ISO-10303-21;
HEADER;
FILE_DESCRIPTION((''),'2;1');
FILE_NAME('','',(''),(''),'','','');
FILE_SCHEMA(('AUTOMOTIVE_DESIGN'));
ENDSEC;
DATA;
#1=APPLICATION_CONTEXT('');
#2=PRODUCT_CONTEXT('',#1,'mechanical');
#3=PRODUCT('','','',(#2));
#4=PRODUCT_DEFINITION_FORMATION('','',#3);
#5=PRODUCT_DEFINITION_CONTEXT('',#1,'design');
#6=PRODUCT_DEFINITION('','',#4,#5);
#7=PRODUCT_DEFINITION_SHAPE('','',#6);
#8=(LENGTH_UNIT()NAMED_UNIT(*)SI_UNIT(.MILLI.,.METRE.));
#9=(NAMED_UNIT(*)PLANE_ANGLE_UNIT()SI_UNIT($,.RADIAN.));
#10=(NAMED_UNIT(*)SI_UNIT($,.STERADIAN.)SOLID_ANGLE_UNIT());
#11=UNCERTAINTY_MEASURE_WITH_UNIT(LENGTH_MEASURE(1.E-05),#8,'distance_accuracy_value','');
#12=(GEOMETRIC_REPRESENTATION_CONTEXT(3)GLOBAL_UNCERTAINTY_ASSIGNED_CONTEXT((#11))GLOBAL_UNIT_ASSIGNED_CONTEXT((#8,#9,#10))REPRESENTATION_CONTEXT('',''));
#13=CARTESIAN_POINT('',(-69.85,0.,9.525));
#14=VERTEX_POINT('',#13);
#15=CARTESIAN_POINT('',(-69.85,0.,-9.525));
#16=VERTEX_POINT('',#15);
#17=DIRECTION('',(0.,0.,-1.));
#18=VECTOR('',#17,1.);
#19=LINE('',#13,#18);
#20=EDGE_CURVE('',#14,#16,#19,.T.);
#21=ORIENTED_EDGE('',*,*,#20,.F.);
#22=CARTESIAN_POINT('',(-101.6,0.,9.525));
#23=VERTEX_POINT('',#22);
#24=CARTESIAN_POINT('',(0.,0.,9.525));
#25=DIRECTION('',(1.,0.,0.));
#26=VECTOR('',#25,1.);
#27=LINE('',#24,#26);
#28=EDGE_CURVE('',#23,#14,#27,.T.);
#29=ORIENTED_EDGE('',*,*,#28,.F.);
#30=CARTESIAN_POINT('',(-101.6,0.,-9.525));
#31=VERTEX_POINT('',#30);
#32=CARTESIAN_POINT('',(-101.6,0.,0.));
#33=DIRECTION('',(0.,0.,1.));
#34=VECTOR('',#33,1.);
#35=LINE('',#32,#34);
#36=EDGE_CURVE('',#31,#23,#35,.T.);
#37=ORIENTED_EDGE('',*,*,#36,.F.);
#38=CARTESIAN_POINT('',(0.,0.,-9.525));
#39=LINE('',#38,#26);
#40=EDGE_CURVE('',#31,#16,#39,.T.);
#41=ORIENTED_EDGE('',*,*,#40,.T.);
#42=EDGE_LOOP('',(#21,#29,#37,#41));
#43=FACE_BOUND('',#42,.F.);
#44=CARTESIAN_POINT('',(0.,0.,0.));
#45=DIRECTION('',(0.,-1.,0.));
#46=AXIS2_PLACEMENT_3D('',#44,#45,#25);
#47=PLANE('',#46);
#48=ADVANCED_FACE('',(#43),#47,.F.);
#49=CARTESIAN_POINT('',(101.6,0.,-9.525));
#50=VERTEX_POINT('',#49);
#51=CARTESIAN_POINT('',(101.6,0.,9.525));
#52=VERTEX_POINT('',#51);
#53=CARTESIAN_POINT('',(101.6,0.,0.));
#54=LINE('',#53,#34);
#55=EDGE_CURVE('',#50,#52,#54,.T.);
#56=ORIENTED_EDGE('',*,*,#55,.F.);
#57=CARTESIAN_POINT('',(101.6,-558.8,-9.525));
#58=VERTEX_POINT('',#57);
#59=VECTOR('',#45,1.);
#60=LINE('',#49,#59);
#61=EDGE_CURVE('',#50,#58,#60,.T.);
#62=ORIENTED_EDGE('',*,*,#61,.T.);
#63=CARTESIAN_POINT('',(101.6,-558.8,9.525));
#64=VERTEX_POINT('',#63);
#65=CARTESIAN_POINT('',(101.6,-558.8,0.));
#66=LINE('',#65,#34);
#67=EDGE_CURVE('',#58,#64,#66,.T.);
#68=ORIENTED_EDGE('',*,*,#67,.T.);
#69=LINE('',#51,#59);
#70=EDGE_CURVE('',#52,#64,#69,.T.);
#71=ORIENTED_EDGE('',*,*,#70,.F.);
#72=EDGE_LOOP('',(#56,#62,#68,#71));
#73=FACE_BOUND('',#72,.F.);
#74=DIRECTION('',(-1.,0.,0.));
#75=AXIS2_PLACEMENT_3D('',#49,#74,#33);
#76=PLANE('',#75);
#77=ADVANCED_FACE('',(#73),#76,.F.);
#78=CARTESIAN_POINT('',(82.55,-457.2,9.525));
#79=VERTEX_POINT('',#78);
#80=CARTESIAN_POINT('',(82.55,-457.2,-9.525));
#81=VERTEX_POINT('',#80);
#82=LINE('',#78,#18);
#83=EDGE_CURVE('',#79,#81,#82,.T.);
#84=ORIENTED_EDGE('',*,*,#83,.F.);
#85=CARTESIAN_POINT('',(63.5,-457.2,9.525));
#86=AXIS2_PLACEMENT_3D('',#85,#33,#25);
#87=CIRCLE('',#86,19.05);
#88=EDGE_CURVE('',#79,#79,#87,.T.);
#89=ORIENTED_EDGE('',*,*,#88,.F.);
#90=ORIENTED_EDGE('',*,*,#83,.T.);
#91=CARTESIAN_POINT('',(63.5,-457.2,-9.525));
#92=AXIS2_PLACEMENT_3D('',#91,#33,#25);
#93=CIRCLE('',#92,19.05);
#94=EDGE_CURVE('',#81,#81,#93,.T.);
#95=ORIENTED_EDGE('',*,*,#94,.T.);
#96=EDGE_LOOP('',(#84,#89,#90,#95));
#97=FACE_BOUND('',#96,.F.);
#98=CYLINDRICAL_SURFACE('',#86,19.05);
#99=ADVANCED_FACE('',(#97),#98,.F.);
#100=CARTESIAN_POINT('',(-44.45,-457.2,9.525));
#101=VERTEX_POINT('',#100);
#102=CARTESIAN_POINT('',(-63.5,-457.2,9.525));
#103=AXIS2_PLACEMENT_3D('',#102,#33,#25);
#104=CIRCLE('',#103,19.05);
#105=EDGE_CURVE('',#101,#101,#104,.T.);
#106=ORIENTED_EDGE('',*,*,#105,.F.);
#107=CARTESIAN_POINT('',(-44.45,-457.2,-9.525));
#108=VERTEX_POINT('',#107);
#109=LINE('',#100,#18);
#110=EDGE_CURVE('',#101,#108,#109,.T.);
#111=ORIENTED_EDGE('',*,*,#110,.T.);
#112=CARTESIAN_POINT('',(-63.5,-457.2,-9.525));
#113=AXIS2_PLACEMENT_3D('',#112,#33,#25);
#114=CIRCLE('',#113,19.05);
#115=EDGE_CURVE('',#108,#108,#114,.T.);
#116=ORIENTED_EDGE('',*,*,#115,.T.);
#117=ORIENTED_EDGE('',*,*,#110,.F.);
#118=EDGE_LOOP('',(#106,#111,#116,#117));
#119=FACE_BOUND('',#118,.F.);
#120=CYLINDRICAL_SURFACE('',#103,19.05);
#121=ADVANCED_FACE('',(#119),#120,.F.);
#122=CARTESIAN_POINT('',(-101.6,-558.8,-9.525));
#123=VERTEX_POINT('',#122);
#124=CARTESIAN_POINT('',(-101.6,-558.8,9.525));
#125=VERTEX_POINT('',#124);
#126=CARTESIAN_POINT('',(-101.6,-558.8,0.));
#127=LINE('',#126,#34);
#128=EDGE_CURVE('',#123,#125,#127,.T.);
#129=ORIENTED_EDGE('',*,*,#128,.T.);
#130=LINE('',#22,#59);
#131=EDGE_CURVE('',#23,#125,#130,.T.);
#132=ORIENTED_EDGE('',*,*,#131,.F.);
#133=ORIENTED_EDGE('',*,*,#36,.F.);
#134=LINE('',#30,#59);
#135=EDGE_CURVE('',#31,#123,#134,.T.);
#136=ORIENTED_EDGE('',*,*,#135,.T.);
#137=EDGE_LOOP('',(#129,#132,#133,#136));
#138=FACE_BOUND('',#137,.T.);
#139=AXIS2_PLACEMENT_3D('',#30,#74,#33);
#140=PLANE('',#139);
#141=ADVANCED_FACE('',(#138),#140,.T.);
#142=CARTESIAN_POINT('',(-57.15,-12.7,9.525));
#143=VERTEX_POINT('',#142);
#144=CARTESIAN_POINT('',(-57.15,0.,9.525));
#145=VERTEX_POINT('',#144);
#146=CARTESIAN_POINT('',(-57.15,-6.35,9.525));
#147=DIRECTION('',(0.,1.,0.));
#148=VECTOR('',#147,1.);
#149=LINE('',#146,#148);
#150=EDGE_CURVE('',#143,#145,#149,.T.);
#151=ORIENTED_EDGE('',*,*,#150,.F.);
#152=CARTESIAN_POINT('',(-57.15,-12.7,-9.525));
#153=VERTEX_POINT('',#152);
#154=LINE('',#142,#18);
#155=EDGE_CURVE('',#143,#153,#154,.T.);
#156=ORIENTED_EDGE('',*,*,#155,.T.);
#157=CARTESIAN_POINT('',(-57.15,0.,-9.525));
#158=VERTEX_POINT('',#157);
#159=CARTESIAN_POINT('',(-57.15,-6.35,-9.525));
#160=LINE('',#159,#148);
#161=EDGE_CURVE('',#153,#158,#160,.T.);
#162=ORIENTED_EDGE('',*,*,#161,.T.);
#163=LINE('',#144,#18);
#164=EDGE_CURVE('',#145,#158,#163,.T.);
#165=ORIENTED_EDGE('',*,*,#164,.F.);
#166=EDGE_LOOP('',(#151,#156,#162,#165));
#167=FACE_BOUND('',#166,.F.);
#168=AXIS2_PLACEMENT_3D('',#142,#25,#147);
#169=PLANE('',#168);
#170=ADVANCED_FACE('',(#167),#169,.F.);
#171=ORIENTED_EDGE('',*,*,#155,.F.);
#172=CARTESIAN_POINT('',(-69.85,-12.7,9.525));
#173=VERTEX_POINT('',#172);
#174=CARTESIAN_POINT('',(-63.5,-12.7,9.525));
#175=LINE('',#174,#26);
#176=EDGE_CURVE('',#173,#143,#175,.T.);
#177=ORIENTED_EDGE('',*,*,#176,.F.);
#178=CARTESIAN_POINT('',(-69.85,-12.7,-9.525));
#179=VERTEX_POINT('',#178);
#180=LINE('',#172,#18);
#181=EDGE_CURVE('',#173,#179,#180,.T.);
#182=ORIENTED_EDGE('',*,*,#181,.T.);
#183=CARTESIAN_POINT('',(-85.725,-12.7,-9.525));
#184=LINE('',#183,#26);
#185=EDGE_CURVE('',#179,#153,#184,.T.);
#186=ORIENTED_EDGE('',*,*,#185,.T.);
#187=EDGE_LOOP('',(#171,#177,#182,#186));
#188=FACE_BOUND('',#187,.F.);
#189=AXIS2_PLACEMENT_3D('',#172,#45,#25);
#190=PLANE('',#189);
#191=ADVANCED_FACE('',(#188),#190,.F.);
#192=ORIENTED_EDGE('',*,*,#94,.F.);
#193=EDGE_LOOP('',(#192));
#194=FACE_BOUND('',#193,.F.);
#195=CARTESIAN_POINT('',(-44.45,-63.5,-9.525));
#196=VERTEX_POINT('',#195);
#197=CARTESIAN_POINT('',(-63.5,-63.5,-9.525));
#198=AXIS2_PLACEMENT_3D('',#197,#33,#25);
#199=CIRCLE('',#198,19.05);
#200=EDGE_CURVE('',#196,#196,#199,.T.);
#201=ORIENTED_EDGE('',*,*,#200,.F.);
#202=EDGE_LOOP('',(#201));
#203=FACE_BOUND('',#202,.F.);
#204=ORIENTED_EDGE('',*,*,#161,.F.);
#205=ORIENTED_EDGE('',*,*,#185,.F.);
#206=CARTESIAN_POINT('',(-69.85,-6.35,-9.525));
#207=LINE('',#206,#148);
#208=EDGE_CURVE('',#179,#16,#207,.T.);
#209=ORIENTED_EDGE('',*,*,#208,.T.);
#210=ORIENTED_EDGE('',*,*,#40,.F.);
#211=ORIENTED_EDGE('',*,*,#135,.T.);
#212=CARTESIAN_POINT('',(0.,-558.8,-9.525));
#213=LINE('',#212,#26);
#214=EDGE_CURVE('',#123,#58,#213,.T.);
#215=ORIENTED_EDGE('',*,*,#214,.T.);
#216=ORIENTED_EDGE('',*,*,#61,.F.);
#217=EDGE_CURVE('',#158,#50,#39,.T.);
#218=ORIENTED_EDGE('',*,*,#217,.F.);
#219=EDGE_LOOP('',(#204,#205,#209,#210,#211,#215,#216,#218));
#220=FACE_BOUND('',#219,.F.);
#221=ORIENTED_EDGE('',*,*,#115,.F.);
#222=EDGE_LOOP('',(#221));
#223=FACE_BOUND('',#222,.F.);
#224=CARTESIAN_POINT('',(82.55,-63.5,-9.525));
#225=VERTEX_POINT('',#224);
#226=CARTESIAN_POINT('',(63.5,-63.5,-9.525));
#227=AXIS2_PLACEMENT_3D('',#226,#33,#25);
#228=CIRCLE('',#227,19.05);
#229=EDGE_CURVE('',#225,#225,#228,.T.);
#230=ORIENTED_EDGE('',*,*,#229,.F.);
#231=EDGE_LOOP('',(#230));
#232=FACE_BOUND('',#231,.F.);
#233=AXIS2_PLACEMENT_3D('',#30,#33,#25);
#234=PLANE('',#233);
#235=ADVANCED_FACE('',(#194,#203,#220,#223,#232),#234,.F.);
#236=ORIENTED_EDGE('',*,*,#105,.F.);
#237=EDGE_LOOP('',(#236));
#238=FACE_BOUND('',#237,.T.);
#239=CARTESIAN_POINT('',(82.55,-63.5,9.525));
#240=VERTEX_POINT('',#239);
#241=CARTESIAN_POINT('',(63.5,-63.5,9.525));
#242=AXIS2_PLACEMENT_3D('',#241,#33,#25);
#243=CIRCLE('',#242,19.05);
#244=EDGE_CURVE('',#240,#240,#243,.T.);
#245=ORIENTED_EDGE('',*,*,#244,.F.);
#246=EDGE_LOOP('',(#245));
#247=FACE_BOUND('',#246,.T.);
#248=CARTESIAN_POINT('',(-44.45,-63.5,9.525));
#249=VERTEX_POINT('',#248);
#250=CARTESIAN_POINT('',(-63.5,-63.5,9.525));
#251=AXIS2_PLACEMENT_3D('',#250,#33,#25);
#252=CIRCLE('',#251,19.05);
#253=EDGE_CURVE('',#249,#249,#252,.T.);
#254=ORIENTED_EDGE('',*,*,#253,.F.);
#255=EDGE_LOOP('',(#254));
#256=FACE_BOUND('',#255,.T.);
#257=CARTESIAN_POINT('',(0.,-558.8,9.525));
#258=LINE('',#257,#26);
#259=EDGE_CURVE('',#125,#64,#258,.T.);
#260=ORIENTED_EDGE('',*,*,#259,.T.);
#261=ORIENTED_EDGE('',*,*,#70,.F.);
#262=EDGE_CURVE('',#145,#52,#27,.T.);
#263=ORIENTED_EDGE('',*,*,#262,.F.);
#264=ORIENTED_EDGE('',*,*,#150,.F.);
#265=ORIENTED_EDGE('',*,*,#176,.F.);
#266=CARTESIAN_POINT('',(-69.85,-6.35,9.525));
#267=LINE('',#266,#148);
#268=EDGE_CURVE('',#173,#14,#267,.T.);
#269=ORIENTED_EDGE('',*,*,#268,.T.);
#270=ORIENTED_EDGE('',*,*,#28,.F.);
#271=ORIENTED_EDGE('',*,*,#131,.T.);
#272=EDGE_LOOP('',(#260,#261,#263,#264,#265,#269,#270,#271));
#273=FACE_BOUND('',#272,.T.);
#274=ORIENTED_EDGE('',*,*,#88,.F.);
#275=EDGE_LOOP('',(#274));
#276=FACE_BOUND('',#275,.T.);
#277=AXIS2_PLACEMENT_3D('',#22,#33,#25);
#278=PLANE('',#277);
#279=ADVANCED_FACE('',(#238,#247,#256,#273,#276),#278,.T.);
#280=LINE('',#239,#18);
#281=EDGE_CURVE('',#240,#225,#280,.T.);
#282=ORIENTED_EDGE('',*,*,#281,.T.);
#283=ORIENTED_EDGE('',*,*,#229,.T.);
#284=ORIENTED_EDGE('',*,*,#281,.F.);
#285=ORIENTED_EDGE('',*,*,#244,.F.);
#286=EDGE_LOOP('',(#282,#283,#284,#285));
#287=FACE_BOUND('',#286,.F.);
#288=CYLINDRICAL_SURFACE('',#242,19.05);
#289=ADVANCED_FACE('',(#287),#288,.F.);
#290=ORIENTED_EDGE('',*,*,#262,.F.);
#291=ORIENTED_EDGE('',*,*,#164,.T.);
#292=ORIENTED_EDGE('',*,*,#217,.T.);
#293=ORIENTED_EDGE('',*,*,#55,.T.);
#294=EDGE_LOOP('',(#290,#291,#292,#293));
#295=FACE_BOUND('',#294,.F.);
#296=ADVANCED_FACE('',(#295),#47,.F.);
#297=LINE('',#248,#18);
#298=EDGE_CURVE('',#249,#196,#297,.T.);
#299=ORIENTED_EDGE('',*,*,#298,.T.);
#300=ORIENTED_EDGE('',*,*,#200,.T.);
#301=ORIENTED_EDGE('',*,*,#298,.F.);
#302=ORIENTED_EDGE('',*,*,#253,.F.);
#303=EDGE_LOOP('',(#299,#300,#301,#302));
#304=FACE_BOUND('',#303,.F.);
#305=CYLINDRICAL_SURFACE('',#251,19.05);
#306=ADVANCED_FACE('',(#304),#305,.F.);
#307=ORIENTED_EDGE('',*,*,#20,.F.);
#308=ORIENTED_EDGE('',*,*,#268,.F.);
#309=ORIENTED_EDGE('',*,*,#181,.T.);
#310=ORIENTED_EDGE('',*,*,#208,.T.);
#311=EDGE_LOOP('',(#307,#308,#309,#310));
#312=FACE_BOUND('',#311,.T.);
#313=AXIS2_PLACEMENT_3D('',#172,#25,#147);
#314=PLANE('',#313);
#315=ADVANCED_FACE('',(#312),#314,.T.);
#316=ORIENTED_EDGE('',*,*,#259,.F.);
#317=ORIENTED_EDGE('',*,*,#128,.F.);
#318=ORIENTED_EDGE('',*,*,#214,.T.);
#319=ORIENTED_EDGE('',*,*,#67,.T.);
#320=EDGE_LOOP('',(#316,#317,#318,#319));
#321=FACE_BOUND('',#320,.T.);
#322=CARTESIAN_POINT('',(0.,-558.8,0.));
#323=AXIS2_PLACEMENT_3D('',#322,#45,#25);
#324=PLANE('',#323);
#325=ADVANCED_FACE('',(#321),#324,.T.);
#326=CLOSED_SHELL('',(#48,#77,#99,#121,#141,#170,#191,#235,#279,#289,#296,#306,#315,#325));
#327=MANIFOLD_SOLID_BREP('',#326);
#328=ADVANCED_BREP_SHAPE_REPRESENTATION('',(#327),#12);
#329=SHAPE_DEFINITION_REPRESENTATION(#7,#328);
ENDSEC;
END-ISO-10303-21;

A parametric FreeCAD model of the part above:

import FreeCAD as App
import Part
import Sketcher

V = App.Vector
Q = App.Units.Quantity

doc = App.newDocument("Part")
body = doc.addObject("PartDesign::Body", "Body")

sketch1 = body.newObject("Sketcher::SketchObject", "Sketch")
sketch1.AttachmentSupport = (doc.getObject("XZ_Plane"), [""])
sketch1.MapMode = "FlatFace"
sketch1.addGeometry(Part.LineSegment(V(-102, 10, 0), V(-102, -10, 0)), False)
sketch1.addGeometry(Part.LineSegment(V(-102, -10, 0), V(102, -10, 0)), False)
sketch1.addGeometry(Part.LineSegment(V(102, -10, 0), V(102, 10, 0)), False)
sketch1.addGeometry(Part.LineSegment(V(102, 10, 0), V(-102, 10, 0)), False)
sketch1.addConstraint(Sketcher.Constraint("Coincident", 0, 2, 1, 1))
sketch1.addConstraint(Sketcher.Constraint("Coincident", 1, 2, 2, 1))
sketch1.addConstraint(Sketcher.Constraint("Coincident", 2, 2, 3, 1))
sketch1.addConstraint(Sketcher.Constraint("Coincident", 3, 2, 0, 1))
sketch1.addConstraint(Sketcher.Constraint("Vertical", 0))
sketch1.addConstraint(Sketcher.Constraint("Horizontal", 1))
sketch1.addConstraint(Sketcher.Constraint("Vertical", 2))
sketch1.addConstraint(Sketcher.Constraint("Horizontal", 3))
sketch1.addConstraint(Sketcher.Constraint("Symmetric", 0, 2, 2, 2, -1, 1))
sketch1.addConstraint(Sketcher.Constraint("DistanceX", 1, 1, 1, 2, Q("8 in")))
sketch1.addConstraint(Sketcher.Constraint("DistanceY", 0, 2, 0, 1, Q("0.75 in")))
pad1 = body.newObject("PartDesign::Pad", "Pad")
pad1.Profile = sketch1
pad1.Length = Q("22 in")

sketch2 = body.newObject("Sketcher::SketchObject", "Sketch001")
sketch2.AttachmentSupport = (doc.getObject("XY_Plane"), [""])
sketch2.MapMode = "FlatFace"
sketch2.AttachmentOffset = App.Placement(V(0, 0, 0.375 * 25.4), App.Rotation())
sketch2.addGeometry(Part.Circle(V(-64, -64, 0), V(0, 0, 1), 19), False)
sketch2.addGeometry(Part.Circle(V(64, -64, 0), V(0, 0, 1), 19), False)
sketch2.addGeometry(Part.Circle(V(-64, -457, 0), V(0, 0, 1), 19), False)
sketch2.addGeometry(Part.Circle(V(64, -457, 0), V(0, 0, 1), 19), False)
sketch2.addGeometry(Part.LineSegment(V(-70, 0, 0), V(-70, -13, 0)), False)
sketch2.addGeometry(Part.LineSegment(V(-70, -13, 0), V(-57, -13, 0)), False)
sketch2.addGeometry(Part.LineSegment(V(-57, -13, 0), V(-57, 0, 0)), False)
sketch2.addGeometry(Part.LineSegment(V(-57, 0, 0), V(-70, 0, 0)), False)
sketch2.addConstraint(Sketcher.Constraint("Coincident", 4, 2, 5, 1))
sketch2.addConstraint(Sketcher.Constraint("Coincident", 5, 2, 6, 1))
sketch2.addConstraint(Sketcher.Constraint("Coincident", 6, 2, 7, 1))
sketch2.addConstraint(Sketcher.Constraint("Coincident", 7, 2, 4, 1))
sketch2.addConstraint(Sketcher.Constraint("Vertical", 4))
sketch2.addConstraint(Sketcher.Constraint("Horizontal", 5))
sketch2.addConstraint(Sketcher.Constraint("Vertical", 6))
sketch2.addConstraint(Sketcher.Constraint("Horizontal", 7))
sketch2.addConstraint(Sketcher.Constraint("Equal", 0, 1))
sketch2.addConstraint(Sketcher.Constraint("Equal", 1, 2))
sketch2.addConstraint(Sketcher.Constraint("Equal", 2, 3))
sketch2.addConstraint(Sketcher.Constraint("Symmetric", 0, 3, 1, 3, -2))
sketch2.addConstraint(Sketcher.Constraint("Symmetric", 2, 3, 3, 3, -2))
sketch2.addConstraint(Sketcher.Constraint("PointOnObject", 6, 2, -1))
sketch2.addConstraint(Sketcher.Constraint("Vertical", 0, 3, 2, 3))
sketch2.addConstraint(Sketcher.Constraint("Equal", 7, 4))
sketch2.addConstraint(Sketcher.Constraint("Diameter", 0, Q("1.5 in")))
sketch2.addConstraint(Sketcher.Constraint("DistanceX", 5, 1, 5, 2, Q("0.5 in")))
sketch2.addConstraint(Sketcher.Constraint("DistanceY", 2, 3, -1, 1, Q("18 in")))
sketch2.addConstraint(Sketcher.Constraint("DistanceX", 0, 3, 1, 3, Q("5 in")))
sketch2.addConstraint(Sketcher.Constraint("DistanceY", 0, 3, 4, 2, Q("2 in")))
sketch2.addConstraint(Sketcher.Constraint("DistanceX", 4, 2, -1, 1, Q("2.75 in")))
pocket1 = body.newObject("PartDesign::Pocket", "Pocket")
pocket1.Profile = sketch2
pocket1.Length = Q("1 in")

doc.recompute()
